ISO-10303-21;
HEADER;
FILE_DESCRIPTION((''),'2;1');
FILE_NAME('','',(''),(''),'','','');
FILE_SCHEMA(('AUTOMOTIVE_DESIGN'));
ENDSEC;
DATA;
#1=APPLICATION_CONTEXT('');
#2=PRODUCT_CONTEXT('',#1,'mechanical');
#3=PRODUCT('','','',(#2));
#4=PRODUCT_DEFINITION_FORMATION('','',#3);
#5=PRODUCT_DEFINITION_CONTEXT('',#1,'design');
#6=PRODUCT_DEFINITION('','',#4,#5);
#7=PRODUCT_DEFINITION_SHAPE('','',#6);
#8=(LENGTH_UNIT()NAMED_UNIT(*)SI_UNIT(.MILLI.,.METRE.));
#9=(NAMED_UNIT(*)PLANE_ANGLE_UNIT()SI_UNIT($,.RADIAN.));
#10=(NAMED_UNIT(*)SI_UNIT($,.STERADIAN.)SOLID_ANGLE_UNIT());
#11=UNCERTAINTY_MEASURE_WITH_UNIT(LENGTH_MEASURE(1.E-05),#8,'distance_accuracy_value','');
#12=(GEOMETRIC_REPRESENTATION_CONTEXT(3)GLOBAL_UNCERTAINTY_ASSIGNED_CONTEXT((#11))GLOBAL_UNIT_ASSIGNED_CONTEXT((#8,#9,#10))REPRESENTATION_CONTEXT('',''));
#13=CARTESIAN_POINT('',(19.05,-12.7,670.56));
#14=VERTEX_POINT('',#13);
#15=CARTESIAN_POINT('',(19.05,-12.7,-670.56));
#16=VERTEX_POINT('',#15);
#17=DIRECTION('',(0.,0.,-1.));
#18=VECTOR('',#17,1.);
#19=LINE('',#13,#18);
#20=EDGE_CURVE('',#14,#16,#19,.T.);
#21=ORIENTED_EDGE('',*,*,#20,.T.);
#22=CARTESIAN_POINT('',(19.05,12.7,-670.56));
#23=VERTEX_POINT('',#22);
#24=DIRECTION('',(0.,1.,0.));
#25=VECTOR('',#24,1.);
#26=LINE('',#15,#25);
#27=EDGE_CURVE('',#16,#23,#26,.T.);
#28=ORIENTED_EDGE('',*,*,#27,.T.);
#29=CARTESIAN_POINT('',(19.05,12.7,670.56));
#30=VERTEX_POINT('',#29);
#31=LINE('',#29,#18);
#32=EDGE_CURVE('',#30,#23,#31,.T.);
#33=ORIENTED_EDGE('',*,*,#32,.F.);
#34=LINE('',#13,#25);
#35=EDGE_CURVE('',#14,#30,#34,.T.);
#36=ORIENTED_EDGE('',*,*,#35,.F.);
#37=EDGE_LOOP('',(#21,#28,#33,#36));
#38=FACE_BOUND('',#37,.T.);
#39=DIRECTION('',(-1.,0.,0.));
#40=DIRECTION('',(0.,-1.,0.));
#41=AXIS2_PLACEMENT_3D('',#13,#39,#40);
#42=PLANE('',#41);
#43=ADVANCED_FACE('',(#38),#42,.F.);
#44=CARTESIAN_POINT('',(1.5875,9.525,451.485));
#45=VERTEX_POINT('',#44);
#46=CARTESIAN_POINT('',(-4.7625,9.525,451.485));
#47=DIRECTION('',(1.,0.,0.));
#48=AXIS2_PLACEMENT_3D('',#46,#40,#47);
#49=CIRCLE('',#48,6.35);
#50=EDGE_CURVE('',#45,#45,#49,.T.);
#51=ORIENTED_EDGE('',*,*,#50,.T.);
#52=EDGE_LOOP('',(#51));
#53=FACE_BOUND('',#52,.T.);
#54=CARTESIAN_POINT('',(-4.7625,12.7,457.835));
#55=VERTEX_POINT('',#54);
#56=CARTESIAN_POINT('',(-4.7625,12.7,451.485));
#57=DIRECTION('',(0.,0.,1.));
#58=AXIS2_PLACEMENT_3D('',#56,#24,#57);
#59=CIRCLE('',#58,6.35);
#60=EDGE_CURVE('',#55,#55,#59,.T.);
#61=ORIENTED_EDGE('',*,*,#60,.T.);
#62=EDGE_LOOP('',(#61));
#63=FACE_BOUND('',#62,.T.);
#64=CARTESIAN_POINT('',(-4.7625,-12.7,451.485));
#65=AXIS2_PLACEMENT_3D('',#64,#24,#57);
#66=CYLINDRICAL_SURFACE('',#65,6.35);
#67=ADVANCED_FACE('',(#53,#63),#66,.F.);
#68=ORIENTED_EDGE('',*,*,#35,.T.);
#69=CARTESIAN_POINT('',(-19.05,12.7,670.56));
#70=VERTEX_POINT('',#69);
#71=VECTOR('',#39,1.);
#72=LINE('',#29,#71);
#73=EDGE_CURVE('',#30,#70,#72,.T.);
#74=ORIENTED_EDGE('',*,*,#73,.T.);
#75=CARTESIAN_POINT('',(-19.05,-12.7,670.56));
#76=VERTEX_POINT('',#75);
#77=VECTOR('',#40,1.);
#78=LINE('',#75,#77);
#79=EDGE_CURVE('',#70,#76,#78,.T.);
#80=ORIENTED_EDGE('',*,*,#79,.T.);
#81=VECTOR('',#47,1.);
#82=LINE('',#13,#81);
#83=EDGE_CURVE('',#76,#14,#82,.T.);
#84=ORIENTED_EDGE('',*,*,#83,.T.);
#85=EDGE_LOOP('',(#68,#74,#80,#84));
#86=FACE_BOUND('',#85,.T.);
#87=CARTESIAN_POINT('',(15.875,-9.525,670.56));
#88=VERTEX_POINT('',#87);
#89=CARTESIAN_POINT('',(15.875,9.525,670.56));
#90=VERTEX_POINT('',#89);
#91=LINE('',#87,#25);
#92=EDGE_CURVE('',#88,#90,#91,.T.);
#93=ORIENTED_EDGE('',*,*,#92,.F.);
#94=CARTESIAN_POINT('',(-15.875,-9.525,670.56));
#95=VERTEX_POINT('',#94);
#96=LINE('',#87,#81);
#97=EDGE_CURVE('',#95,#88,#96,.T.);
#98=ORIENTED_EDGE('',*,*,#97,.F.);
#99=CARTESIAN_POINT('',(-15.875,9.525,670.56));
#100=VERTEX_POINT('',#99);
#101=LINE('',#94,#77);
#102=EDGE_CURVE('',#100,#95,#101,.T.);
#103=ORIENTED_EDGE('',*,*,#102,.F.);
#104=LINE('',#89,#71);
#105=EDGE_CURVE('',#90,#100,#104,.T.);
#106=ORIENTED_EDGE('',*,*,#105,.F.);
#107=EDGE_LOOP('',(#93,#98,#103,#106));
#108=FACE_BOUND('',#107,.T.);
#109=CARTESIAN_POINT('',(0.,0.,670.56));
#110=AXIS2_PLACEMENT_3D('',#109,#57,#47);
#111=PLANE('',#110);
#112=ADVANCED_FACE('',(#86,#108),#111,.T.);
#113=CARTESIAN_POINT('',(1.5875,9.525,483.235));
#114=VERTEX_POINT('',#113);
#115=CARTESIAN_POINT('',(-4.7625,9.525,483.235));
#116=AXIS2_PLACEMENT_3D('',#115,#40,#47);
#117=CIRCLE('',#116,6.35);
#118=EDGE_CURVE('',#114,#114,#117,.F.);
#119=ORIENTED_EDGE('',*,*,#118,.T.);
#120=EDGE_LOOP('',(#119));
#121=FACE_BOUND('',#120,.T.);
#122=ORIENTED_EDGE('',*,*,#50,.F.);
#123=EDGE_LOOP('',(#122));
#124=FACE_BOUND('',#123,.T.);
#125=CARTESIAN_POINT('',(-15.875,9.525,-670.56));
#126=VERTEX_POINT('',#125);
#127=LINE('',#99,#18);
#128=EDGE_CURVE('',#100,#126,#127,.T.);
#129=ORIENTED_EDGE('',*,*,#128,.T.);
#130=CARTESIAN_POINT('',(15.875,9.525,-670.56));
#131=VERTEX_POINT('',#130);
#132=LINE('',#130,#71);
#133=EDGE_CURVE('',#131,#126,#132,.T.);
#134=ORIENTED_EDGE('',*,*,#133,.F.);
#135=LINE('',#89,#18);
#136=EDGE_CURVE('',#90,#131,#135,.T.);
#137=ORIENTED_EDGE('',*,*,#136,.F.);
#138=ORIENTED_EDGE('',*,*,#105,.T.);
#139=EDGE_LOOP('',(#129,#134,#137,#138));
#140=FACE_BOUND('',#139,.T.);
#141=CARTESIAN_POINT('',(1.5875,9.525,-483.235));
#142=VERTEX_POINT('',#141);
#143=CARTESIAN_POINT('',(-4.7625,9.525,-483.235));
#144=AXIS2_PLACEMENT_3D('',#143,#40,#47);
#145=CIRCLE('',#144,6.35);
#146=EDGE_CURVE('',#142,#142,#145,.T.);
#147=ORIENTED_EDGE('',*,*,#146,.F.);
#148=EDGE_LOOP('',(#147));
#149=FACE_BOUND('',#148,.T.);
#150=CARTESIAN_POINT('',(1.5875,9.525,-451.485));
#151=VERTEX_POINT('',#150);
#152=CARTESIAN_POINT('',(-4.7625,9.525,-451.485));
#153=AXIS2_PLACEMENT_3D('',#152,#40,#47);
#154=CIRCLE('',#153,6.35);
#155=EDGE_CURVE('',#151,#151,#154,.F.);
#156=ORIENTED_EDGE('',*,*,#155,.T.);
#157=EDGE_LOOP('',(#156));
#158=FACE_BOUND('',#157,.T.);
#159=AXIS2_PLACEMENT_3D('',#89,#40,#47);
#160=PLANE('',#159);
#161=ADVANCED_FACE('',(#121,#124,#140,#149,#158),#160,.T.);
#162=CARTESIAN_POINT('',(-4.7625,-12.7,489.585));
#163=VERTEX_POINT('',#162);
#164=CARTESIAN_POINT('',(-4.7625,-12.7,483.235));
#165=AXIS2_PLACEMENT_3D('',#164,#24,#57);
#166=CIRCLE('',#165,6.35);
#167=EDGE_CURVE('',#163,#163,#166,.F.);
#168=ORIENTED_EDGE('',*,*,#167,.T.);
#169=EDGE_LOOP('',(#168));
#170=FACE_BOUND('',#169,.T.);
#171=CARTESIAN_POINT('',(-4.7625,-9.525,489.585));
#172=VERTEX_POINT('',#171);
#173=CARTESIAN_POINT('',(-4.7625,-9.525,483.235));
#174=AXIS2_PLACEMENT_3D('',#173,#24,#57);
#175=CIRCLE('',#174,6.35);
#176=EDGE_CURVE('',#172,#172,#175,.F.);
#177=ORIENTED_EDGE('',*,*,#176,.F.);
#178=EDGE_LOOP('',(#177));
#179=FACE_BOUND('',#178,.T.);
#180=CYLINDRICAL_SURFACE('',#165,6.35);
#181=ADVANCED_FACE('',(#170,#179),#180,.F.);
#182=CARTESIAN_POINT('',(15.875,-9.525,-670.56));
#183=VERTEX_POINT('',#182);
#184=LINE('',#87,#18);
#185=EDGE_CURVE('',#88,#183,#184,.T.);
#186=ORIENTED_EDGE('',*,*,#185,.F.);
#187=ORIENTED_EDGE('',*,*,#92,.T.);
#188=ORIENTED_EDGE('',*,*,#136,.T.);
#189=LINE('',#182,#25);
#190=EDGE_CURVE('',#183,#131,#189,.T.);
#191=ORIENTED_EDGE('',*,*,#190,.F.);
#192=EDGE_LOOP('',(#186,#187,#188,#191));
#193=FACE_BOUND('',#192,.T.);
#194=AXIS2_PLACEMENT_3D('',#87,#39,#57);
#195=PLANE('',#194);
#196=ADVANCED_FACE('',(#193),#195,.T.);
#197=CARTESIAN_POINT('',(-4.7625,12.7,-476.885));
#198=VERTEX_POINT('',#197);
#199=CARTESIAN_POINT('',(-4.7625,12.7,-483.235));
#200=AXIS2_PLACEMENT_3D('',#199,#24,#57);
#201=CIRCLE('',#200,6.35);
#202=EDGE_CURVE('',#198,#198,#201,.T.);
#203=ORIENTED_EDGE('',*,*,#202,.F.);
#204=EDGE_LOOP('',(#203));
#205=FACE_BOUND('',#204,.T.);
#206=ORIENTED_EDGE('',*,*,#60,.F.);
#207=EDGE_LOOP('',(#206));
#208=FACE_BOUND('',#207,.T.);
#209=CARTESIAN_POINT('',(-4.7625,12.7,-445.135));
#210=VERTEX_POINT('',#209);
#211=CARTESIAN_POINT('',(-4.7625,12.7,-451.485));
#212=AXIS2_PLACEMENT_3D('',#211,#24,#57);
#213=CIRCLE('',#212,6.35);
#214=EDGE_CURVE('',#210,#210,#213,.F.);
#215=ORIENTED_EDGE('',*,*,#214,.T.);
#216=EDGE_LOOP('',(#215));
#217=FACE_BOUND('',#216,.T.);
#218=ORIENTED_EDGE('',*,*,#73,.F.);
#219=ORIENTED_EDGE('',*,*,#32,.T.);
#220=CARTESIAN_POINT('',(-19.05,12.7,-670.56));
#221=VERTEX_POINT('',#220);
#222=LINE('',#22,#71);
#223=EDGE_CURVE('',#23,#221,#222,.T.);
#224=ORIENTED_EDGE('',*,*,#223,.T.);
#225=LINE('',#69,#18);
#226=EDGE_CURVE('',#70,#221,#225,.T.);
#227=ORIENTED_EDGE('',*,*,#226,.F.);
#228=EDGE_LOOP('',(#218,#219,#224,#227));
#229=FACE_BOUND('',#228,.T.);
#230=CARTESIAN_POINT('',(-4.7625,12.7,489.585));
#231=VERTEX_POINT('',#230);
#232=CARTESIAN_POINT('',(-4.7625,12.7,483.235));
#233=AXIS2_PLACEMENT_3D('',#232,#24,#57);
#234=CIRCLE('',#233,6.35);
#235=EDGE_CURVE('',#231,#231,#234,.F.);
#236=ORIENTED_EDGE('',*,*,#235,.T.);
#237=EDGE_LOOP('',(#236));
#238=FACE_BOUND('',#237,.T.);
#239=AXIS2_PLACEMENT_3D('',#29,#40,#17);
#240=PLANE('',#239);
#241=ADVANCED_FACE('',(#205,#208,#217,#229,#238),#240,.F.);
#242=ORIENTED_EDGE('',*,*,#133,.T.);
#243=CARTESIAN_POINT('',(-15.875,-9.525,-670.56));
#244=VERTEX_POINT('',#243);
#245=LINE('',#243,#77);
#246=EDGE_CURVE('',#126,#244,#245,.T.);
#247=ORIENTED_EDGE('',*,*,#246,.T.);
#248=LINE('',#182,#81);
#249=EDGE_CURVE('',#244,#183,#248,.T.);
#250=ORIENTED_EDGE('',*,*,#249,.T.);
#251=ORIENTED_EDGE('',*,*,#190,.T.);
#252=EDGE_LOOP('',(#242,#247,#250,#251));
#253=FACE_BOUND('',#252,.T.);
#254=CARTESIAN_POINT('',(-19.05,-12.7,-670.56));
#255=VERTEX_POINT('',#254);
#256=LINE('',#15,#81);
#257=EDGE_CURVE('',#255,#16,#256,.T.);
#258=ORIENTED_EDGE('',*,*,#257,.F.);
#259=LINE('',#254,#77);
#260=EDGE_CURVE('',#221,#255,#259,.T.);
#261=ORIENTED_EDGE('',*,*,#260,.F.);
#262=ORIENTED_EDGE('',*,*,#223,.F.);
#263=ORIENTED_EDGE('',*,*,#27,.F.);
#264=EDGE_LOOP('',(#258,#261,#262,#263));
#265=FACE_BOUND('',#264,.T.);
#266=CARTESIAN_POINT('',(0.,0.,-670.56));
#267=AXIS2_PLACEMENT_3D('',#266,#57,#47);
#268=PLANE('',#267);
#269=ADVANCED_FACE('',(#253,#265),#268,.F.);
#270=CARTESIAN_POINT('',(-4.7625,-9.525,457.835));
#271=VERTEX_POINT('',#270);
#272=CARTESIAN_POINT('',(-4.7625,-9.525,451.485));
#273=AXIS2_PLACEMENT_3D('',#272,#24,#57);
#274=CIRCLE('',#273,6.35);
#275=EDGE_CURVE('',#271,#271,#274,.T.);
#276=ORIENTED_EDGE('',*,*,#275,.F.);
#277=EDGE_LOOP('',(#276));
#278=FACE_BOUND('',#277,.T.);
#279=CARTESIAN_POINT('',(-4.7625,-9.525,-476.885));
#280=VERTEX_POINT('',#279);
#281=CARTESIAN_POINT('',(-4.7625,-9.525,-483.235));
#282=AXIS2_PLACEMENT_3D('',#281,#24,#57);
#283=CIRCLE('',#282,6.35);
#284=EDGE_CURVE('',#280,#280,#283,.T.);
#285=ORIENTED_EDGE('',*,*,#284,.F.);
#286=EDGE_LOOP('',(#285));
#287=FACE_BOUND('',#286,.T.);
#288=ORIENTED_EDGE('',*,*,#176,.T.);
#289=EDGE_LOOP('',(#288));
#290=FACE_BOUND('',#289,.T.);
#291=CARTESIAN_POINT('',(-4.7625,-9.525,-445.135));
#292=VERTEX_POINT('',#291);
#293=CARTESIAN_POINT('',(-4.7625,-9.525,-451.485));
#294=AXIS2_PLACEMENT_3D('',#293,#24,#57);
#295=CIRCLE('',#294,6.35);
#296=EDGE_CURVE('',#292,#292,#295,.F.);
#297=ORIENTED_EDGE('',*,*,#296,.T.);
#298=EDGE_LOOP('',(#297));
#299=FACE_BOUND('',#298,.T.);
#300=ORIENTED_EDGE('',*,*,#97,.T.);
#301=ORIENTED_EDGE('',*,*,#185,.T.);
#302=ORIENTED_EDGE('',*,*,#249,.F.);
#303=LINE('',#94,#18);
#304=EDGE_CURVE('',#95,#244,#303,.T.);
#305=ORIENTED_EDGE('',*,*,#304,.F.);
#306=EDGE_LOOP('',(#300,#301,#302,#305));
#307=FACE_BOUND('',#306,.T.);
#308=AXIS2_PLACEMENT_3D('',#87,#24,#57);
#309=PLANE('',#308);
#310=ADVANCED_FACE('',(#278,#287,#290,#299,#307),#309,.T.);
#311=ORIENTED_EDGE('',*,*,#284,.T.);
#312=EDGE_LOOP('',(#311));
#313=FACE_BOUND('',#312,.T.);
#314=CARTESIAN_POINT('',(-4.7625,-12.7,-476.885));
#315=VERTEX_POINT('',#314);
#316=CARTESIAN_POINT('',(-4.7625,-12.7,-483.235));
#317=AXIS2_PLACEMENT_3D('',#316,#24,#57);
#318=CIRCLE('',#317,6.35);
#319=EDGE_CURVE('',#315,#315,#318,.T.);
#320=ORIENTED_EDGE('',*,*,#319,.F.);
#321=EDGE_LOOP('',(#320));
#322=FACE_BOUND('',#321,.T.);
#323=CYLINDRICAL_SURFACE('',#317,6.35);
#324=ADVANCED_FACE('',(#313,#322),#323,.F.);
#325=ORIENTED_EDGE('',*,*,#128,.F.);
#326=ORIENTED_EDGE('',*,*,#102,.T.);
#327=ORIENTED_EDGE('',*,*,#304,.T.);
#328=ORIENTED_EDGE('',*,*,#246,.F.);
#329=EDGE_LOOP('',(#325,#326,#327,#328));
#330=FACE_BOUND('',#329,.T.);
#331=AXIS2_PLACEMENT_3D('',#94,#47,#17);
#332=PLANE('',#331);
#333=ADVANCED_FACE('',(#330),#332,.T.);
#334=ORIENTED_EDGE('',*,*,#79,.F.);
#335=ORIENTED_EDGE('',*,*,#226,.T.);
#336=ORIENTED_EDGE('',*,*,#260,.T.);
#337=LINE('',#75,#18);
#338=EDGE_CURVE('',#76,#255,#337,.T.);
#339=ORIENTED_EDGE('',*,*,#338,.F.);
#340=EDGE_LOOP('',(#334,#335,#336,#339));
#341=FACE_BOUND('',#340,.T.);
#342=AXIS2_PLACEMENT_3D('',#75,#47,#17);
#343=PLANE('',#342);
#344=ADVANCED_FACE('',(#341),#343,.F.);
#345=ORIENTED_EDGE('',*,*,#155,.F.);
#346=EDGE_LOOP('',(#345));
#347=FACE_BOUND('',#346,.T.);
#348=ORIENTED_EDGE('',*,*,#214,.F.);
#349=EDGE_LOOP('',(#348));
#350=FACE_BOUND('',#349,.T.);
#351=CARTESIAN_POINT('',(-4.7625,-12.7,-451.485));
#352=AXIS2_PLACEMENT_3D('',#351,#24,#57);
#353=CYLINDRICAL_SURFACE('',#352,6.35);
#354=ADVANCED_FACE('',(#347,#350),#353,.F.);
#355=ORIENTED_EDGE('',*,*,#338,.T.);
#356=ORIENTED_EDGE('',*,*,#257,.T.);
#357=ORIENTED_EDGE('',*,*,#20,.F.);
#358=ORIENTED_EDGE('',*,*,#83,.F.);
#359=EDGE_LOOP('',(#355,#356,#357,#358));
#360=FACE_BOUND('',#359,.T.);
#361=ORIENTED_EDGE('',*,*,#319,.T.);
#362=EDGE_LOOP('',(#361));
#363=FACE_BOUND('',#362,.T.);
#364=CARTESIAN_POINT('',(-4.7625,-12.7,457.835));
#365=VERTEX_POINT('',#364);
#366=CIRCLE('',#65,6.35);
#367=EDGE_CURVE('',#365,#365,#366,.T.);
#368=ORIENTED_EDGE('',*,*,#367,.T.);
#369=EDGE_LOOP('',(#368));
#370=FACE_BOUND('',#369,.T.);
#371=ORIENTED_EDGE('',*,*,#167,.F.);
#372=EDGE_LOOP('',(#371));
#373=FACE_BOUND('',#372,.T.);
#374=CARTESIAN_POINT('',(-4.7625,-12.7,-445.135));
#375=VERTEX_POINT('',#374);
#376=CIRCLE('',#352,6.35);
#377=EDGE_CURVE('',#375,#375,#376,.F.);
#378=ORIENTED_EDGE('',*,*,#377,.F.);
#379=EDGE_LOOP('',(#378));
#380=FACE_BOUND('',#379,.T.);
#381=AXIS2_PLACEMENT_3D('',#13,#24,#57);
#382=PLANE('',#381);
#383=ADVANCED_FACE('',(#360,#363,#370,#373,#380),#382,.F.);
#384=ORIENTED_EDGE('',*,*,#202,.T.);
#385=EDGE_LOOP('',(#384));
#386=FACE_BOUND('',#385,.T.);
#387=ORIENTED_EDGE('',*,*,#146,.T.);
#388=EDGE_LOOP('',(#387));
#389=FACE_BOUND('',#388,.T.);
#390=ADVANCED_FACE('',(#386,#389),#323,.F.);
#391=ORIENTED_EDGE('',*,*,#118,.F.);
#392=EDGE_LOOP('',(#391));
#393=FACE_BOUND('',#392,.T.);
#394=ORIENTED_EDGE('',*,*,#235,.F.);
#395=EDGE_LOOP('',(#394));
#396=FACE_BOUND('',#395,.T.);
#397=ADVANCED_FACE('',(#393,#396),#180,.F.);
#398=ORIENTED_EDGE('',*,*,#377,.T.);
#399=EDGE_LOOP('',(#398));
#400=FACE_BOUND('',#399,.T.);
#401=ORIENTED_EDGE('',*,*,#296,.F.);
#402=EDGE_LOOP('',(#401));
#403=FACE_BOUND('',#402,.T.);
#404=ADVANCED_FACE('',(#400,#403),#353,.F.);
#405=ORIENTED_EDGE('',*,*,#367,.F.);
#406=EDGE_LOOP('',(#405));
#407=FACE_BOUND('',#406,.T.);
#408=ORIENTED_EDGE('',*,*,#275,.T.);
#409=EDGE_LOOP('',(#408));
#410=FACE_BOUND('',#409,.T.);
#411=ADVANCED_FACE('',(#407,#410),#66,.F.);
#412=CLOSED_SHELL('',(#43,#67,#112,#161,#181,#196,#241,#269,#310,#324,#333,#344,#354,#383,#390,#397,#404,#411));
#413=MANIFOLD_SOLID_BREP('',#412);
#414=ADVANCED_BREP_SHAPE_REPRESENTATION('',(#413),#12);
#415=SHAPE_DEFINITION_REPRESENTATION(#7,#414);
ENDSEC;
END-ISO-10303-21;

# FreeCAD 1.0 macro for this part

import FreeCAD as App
import Part
import Sketcher
Q = App.Units.Quantity

doc = App.newDocument("Part")
params = doc.addObject("Spreadsheet::Sheet", "Params")
for row, (alias, value) in enumerate([
    ("sketch1_height", "1 in"),
    ("sketch1_width", "1.5 in"),
    ("sketch1_width2", "1.25 in"),
    ("sketch1_height2", "0.75 in"),
    ("pad1_length", "26.4 in"),
    ("pad1_length2", "26.4 in"),
    ("sketch2_diameter", "0.5 in"),
], start=1):
    params.set(f"A{row}", alias)
    params.set(f"B{row}", "=" + value)
    params.setAlias(f"B{row}", alias)

body = doc.addObject("PartDesign::Body", "Body")

# Sketch on XY plane
sketch1 = body.newObject("Sketcher::SketchObject", "Sketch")
sketch1.AttachmentSupport = (doc.getObject("XY_Plane"), [""])
sketch1.MapMode = "FlatFace"
sketch1.addGeometry([
    Part.LineSegment(App.Vector(-19, 13, 0), App.Vector(-19, -13, 0)),  # 0
    Part.LineSegment(App.Vector(-19, -13, 0), App.Vector(19, -13, 0)),  # 1
    Part.LineSegment(App.Vector(19, -13, 0), App.Vector(19, 13, 0)),  # 2
    Part.LineSegment(App.Vector(19, 13, 0), App.Vector(-19, 13, 0)),  # 3
    Part.LineSegment(App.Vector(16, -10, 0), App.Vector(-16, -10, 0)),  # 4
    Part.LineSegment(App.Vector(-16, -10, 0), App.Vector(-16, 10, 0)),  # 5
    Part.LineSegment(App.Vector(-16, 10, 0), App.Vector(16, 10, 0)),  # 6
    Part.LineSegment(App.Vector(16, 10, 0), App.Vector(16, -10, 0)),  # 7
], False)
sketch1.addConstraint([
    Sketcher.Constraint("Coincident", 0, 2, 1, 1),
    Sketcher.Constraint("Coincident", 1, 2, 2, 1),
    Sketcher.Constraint("Coincident", 2, 2, 3, 1),
    Sketcher.Constraint("Coincident", 3, 2, 0, 1),
    Sketcher.Constraint("Coincident", 4, 2, 5, 1),
    Sketcher.Constraint("Coincident", 5, 2, 6, 1),
    Sketcher.Constraint("Coincident", 6, 2, 7, 1),
    Sketcher.Constraint("Coincident", 7, 2, 4, 1),
    Sketcher.Constraint("Vertical", 0),
    Sketcher.Constraint("Horizontal", 1),
    Sketcher.Constraint("Vertical", 2),
    Sketcher.Constraint("Horizontal", 3),
    Sketcher.Constraint("Horizontal", 4),
    Sketcher.Constraint("Vertical", 5),
    Sketcher.Constraint("Horizontal", 6),
    Sketcher.Constraint("Vertical", 7),
    Sketcher.Constraint("Symmetric", 0, 2, 2, 2, -1, 1),
    Sketcher.Constraint("Symmetric", 4, 2, 6, 2, -1, 1),
    Sketcher.Constraint("DistanceY", 0, 2, 0, 1, Q("1 in")),
    Sketcher.Constraint("DistanceX", 1, 1, 1, 2, Q("1.5 in")),
    Sketcher.Constraint("DistanceX", 4, 2, 4, 1, Q("1.25 in")),
    Sketcher.Constraint("DistanceY", 5, 1, 5, 2, Q("0.75 in")),
])
sketch1.setExpression("Constraints[18]", "Params.sketch1_height")
sketch1.setExpression("Constraints[19]", "Params.sketch1_width")
sketch1.setExpression("Constraints[20]", "Params.sketch1_width2")
sketch1.setExpression("Constraints[21]", "Params.sketch1_height2")
pad1 = body.newObject("PartDesign::Pad", "Pad")
pad1.Profile = sketch1
pad1.Type = "TwoLengths"
pad1.setExpression("Length", "Params.pad1_length")
pad1.setExpression("Length2", "Params.pad1_length2")

# Sketch on XZ plane
sketch2 = body.newObject("Sketcher::SketchObject", "Sketch001")
sketch2.AttachmentSupport = (doc.getObject("XZ_Plane"), [""])
sketch2.MapMode = "FlatFace"
sketch2.AttachmentOffset = App.Placement(App.Vector(0, 0, -0.5 * 25.4), App.Rotation())
sketch2.addGeometry([
    Part.Circle(App.Vector(-5, 451, 0), App.Vector(0, 0, 1), 6),
    Part.Circle(App.Vector(-5, 483, 0), App.Vector(0, 0, 1), 6),
    Part.Circle(App.Vector(-5, -483, 0), App.Vector(0, 0, 1), 6),
    Part.Circle(App.Vector(-5, -451, 0), App.Vector(0, 0, 1), 6),
], False)
sketch2.addConstraint([
    Sketcher.Constraint("Equal", 0, 1),
    Sketcher.Constraint("Equal", 1, 2),
    Sketcher.Constraint("Equal", 2, 3),
    Sketcher.Constraint("Symmetric", 1, 3, 2, 3, -1),
    Sketcher.Constraint("Symmetric", 0, 3, 3, 3, -1),
    Sketcher.Constraint("Vertical", 0, 3, 1, 3),
    Sketcher.Constraint("Diameter", 0, Q("0.5 in")),
    Sketcher.Constraint("DistanceY", 2, 3, 0, 3, Q("36.8 in")),
    Sketcher.Constraint("DistanceY", 0, 3, 1, 3, Q("1.25 in")),
    Sketcher.Constraint("DistanceX", 0, 3, -1, 1, Q("0.1875 in")),
])
sketch2.setExpression("Constraints[6]", "Params.sketch2_diameter")
pocket1 = body.newObject("PartDesign::Pocket", "Pocket")
pocket1.Profile = sketch2
pocket1.Type = "ThroughAll"
pocket1.Reversed = True

doc.recompute()
